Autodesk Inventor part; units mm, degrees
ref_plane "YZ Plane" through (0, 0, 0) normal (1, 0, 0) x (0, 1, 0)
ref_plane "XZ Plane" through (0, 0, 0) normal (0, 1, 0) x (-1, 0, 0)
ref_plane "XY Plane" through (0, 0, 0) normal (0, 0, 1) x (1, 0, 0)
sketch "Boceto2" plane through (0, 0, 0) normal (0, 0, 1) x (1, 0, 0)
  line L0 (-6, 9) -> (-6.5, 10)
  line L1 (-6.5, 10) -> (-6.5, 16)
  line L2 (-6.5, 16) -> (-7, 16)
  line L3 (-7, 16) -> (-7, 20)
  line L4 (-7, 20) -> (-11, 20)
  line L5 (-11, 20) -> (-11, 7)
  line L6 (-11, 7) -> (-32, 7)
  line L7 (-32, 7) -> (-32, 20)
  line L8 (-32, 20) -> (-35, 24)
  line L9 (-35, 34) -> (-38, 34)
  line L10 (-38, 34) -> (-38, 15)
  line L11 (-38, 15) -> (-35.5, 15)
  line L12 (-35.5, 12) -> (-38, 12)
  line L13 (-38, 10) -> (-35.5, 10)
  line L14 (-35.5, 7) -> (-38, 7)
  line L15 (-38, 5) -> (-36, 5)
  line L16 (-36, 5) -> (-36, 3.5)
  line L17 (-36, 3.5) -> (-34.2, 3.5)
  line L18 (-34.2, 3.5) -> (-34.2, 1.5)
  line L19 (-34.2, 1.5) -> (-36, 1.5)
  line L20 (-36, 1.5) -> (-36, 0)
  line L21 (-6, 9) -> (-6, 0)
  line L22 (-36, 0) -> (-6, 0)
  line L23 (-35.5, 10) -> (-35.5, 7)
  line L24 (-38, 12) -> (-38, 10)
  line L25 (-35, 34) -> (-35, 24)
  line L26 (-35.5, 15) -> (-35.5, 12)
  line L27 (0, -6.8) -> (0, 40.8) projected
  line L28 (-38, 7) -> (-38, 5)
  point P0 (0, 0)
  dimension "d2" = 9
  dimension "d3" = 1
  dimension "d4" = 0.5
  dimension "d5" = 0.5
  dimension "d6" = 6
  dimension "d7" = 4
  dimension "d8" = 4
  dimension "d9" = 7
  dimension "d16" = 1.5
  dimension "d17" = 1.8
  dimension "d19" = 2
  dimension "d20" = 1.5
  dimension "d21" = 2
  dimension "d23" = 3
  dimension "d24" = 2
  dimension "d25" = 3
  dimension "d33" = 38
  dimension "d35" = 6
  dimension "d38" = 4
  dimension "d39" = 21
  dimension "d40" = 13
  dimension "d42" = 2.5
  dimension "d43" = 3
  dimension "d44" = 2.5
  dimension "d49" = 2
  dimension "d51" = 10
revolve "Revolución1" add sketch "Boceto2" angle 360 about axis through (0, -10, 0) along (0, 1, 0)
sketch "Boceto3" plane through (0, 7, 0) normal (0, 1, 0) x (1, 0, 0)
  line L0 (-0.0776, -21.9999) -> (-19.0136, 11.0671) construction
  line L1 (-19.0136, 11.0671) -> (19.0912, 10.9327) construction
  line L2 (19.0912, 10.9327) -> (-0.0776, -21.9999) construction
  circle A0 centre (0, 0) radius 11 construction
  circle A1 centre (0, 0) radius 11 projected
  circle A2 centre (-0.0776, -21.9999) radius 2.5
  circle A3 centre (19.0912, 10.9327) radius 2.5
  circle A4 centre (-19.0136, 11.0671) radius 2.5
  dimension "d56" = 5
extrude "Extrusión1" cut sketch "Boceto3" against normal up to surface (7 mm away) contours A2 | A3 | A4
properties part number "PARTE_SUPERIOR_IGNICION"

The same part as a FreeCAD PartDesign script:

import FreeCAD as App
import Part
import Sketcher

V = App.Vector

doc = App.newDocument("Part")
params = doc.addObject("Spreadsheet::Sheet", "Params")
for row, (alias, value) in enumerate([
    ("sketch1_width", "4 mm"),
    ("sketch1_width2", "21 mm"),
    ("sketch1_width3", "3 mm"),
    ("sketch1_width4", "2 mm"),
    ("sketch1_height", "9 mm"),
    ("revolution_angle", "360 deg"),
    ("sketch2_diameter", "5 mm"),
    ("pocket1_length", "7 mm"),
], start=1):
    params.set(f"A{row}", alias)
    params.set(f"B{row}", "=" + value)
    params.setAlias(f"B{row}", alias)

body = doc.addObject("PartDesign::Body", "Body")

# Sketch on XY plane
sketch1 = body.newObject("Sketcher::SketchObject", "Sketch")
sketch1.AttachmentSupport = (doc.getObject("XY_Plane"), [""])
sketch1.MapMode = "FlatFace"
sketch1.addGeometry(Part.LineSegment(V(-6, 0, 0), V(-6, 9, 0)), False)
sketch1.addGeometry(Part.LineSegment(V(-6, 9, 0), V(-6.5, 10, 0)), False)
sketch1.addGeometry(Part.LineSegment(V(-6.5, 10, 0), V(-6.5, 16, 0)), False)
sketch1.addGeometry(Part.LineSegment(V(-6.5, 16, 0), V(-7, 16, 0)), False)
sketch1.addGeometry(Part.LineSegment(V(-7, 16, 0), V(-7, 20, 0)), False)
sketch1.addGeometry(Part.LineSegment(V(-7, 20, 0), V(-11, 20, 0)), False)
sketch1.addGeometry(Part.LineSegment(V(-11, 20, 0), V(-11, 7, 0)), False)
sketch1.addGeometry(Part.LineSegment(V(-11, 7, 0), V(-32, 7, 0)), False)
sketch1.addGeometry(Part.LineSegment(V(-32, 7, 0), V(-32, 20, 0)), False)
sketch1.addGeometry(Part.LineSegment(V(-32, 20, 0), V(-35, 24, 0)), False)
sketch1.addGeometry(Part.LineSegment(V(-35, 24, 0), V(-35, 34, 0)), False)
sketch1.addGeometry(Part.LineSegment(V(-35, 34, 0), V(-38, 34, 0)), False)
sketch1.addGeometry(Part.LineSegment(V(-38, 34, 0), V(-38, 15, 0)), False)
sketch1.addGeometry(Part.LineSegment(V(-38, 15, 0), V(-35.5, 15, 0)), False)
sketch1.addGeometry(Part.LineSegment(V(-35.5, 15, 0), V(-35.5, 12, 0)), False)
sketch1.addGeometry(Part.LineSegment(V(-35.5, 12, 0), V(-38, 12, 0)), False)
sketch1.addGeometry(Part.LineSegment(V(-38, 12, 0), V(-38, 10, 0)), False)
sketch1.addGeometry(Part.LineSegment(V(-38, 10, 0), V(-35.5, 10, 0)), False)
sketch1.addGeometry(Part.LineSegment(V(-35.5, 10, 0), V(-35.5, 7, 0)), False)
sketch1.addGeometry(Part.LineSegment(V(-35.5, 7, 0), V(-38, 7, 0)), False)
sketch1.addGeometry(Part.LineSegment(V(-38, 7, 0), V(-38, 5, 0)), False)
sketch1.addGeometry(Part.LineSegment(V(-38, 5, 0), V(-36, 5, 0)), False)
sketch1.addGeometry(Part.LineSegment(V(-36, 5, 0), V(-36, 3.5, 0)), False)
sketch1.addGeometry(Part.LineSegment(V(-36, 3.5, 0), V(-34.2, 3.5, 0)), False)
sketch1.addGeometry(Part.LineSegment(V(-34.2, 3.5, 0), V(-34.2, 1.5, 0)), False)
sketch1.addGeometry(Part.LineSegment(V(-34.2, 1.5, 0), V(-36, 1.5, 0)), False)
sketch1.addGeometry(Part.LineSegment(V(-36, 1.5, 0), V(-36, 0, 0)), False)
sketch1.addGeometry(Part.LineSegment(V(-36, 0, 0), V(-6, 0, 0)), False)
sketch1.addConstraint(Sketcher.Constraint("Coincident", 0, 2, 1, 1))
sketch1.addConstraint(Sketcher.Constraint("Coincident", 1, 2, 2, 1))
sketch1.addConstraint(Sketcher.Constraint("Coincident", 2, 2, 3, 1))
sketch1.addConstraint(Sketcher.Constraint("Coincident", 3, 2, 4, 1))
sketch1.addConstraint(Sketcher.Constraint("Coincident", 4, 2, 5, 1))
sketch1.addConstraint(Sketcher.Constraint("Coincident", 5, 2, 6, 1))
sketch1.addConstraint(Sketcher.Constraint("Coincident", 6, 2, 7, 1))
sketch1.addConstraint(Sketcher.Constraint("Coincident", 7, 2, 8, 1))
sketch1.addConstraint(Sketcher.Constraint("Coincident", 8, 2, 9, 1))
sketch1.addConstraint(Sketcher.Constraint("Coincident", 9, 2, 10, 1))
sketch1.addConstraint(Sketcher.Constraint("Coincident", 10, 2, 11, 1))
sketch1.addConstraint(Sketcher.Constraint("Coincident", 11, 2, 12, 1))
sketch1.addConstraint(Sketcher.Constraint("Coincident", 12, 2, 13, 1))
sketch1.addConstraint(Sketcher.Constraint("Coincident", 13, 2, 14, 1))
sketch1.addConstraint(Sketcher.Constraint("Coincident", 14, 2, 15, 1))
sketch1.addConstraint(Sketcher.Constraint("Coincident", 15, 2, 16, 1))
sketch1.addConstraint(Sketcher.Constraint("Coincident", 16, 2, 17, 1))
sketch1.addConstraint(Sketcher.Constraint("Coincident", 17, 2, 18, 1))
sketch1.addConstraint(Sketcher.Constraint("Coincident", 18, 2, 19, 1))
sketch1.addConstraint(Sketcher.Constraint("Coincident", 19, 2, 20, 1))
sketch1.addConstraint(Sketcher.Constraint("Coincident", 20, 2, 21, 1))
sketch1.addConstraint(Sketcher.Constraint("Coincident", 21, 2, 22, 1))
sketch1.addConstraint(Sketcher.Constraint("Coincident", 22, 2, 23, 1))
sketch1.addConstraint(Sketcher.Constraint("Coincident", 23, 2, 24, 1))
sketch1.addConstraint(Sketcher.Constraint("Coincident", 24, 2, 25, 1))
sketch1.addConstraint(Sketcher.Constraint("Coincident", 25, 2, 26, 1))
sketch1.addConstraint(Sketcher.Constraint("Coincident", 26, 2, 27, 1))
sketch1.addConstraint(Sketcher.Constraint("Coincident", 27, 2, 0, 1))
sketch1.addConstraint(Sketcher.Constraint("Vertical", 0))
sketch1.addConstraint(Sketcher.Constraint("Vertical", 2))
sketch1.addConstraint(Sketcher.Constraint("Horizontal", 3))
sketch1.addConstraint(Sketcher.Constraint("Vertical", 4))
sketch1.addConstraint(Sketcher.Constraint("Horizontal", 5))
sketch1.addConstraint(Sketcher.Constraint("Vertical", 6))
sketch1.addConstraint(Sketcher.Constraint("Horizontal", 7))
sketch1.addConstraint(Sketcher.Constraint("Vertical", 8))
sketch1.addConstraint(Sketcher.Constraint("Vertical", 10))
sketch1.addConstraint(Sketcher.Constraint("Horizontal", 11))
sketch1.addConstraint(Sketcher.Constraint("Vertical", 12))
sketch1.addConstraint(Sketcher.Constraint("Horizontal", 13))
sketch1.addConstraint(Sketcher.Constraint("Vertical", 14))
sketch1.addConstraint(Sketcher.Constraint("Horizontal", 15))
sketch1.addConstraint(Sketcher.Constraint("Vertical", 16))
sketch1.addConstraint(Sketcher.Constraint("Horizontal", 17))
sketch1.addConstraint(Sketcher.Constraint("Vertical", 18))
sketch1.addConstraint(Sketcher.Constraint("Horizontal", 19))
sketch1.addConstraint(Sketcher.Constraint("Vertical", 20))
sketch1.addConstraint(Sketcher.Constraint("Horizontal", 21))
sketch1.addConstraint(Sketcher.Constraint("Vertical", 22))
sketch1.addConstraint(Sketcher.Constraint("Horizontal", 23))
sketch1.addConstraint(Sketcher.Constraint("Vertical", 24))
sketch1.addConstraint(Sketcher.Constraint("Horizontal", 25))
sketch1.addConstraint(Sketcher.Constraint("Vertical", 26))
sketch1.addConstraint(Sketcher.Constraint("Horizontal", 27))
sketch1.addConstraint(Sketcher.Constraint("PointOnObject", 26, 2, -1))
sketch1.addConstraint(Sketcher.Constraint("Horizontal", 5, 2, 8, 2))
sketch1.addConstraint(Sketcher.Constraint("Horizontal", 1, 2, 16, 2))
sketch1.addConstraint(Sketcher.Constraint("Horizontal", 7, 2, 18, 2))
sketch1.addConstraint(Sketcher.Constraint("Vertical", 12, 2, 15, 2))
sketch1.addConstraint(Sketcher.Constraint("Vertical", 14, 2, 17, 2))
sketch1.addConstraint(Sketcher.Constraint("Vertical", 16, 2, 19, 2))
sketch1.addConstraint(Sketcher.Constraint("Vertical", 22, 2, 25, 2))
sketch1.addConstraint(Sketcher.Constraint("Equal", 5, 4))
sketch1.addConstraint(Sketcher.Constraint("Equal", 11, 14))
sketch1.addConstraint(Sketcher.Constraint("Equal", 21, 16))
sketch1.addConstraint(Sketcher.Constraint("Equal", 14, 18))
sketch1.addConstraint(Sketcher.Constraint("Equal", 16, 20))
sketch1.addConstraint(Sketcher.Constraint("Equal", 20, 24))
sketch1.addConstraint(Sketcher.Constraint("Equal", 22, 26))
sketch1.addConstraint(Sketcher.Constraint("DistanceX", 5, 2, 5, 1, 4.0))
sketch1.addConstraint(Sketcher.Constraint("DistanceX", 7, 2, 7, 1, 21.0))
sketch1.addConstraint(Sketcher.Constraint("DistanceX", 11, 2, 11, 1, 3.0))
sketch1.addConstraint(Sketcher.Constraint("DistanceX", 21, 1, 21, 2, 2.0))
sketch1.addConstraint(Sketcher.Constraint("DistanceY", 0, 1, 0, 2, 9.0))
sketch1.addConstraint(Sketcher.Constraint("DistanceY", 2, 1, 2, 2, 6.0))
sketch1.addConstraint(Sketcher.Constraint("DistanceY", 10, 1, 10, 2, 10.0))
sketch1.addConstraint(Sketcher.Constraint("DistanceX", 3, 2, 3, 1, 0.5))
sketch1.addConstraint(Sketcher.Constraint("DistanceX", 13, 1, 13, 2, 2.5))
sketch1.addConstraint(Sketcher.Constraint("DistanceX", 23, 1, 23, 2, 1.8))
sketch1.addConstraint(Sketcher.Constraint("DistanceY", 22, 2, 22, 1, 1.5))
sketch1.addConstraint(Sketcher.Constraint("DistanceX", 0, 2, -1, 1, 6.0))
sketch1.addConstraint(Sketcher.Constraint("DistanceX", 3, 2, -1, 1, 7.0))
sketch1.addConstraint(Sketcher.Constraint("DistanceX", 11, 2, -1, 1, 38.0))
sketch1.addConstraint(Sketcher.Constraint("DistanceY", 8, 2, 9, 2, 4.0))
sketch1.setExpression("Constraints[69]", "Params.sketch1_width")
sketch1.setExpression("Constraints[70]", "Params.sketch1_width2")
sketch1.setExpression("Constraints[71]", "Params.sketch1_width3")
sketch1.setExpression("Constraints[72]", "Params.sketch1_width4")
sketch1.setExpression("Constraints[73]", "Params.sketch1_height")
revolution = body.newObject("PartDesign::Revolution", "Revolution")
revolution.Profile = sketch1
revolution.ReferenceAxis = (sketch1, ["V_Axis"])
revolution.setExpression("Angle", "Params.revolution_angle")

# Sketch on XZ plane
sketch2 = body.newObject("Sketcher::SketchObject", "Sketch001")
sketch2.AttachmentSupport = (doc.getObject("XZ_Plane"), [""])
sketch2.MapMode = "FlatFace"
sketch2.AttachmentOffset = App.Placement(V(0, 0, -7), App.Rotation())
sketch2.addGeometry(Part.Circle(V(-0.0776, 21.9999, 0), V(0, 0, 1), 2.5), False)
sketch2.addGeometry(Part.Circle(V(19.0912, -10.9327, 0), V(0, 0, 1), 2.5), False)
sketch2.addGeometry(Part.Circle(V(-19.0136, -11.0671, 0), V(0, 0, 1), 2.5), False)
sketch2.addConstraint(Sketcher.Constraint("Equal", 0, 1))
sketch2.addConstraint(Sketcher.Constraint("Equal", 1, 2))
sketch2.addConstraint(Sketcher.Constraint("Diameter", 0, 5.0))
sketch2.addConstraint(Sketcher.Constraint("DistanceY", -1, 1, 0, 3, 22.0))
sketch2.addConstraint(Sketcher.Constraint("DistanceY", 2, 3, -1, 1, 11.067))
sketch2.addConstraint(Sketcher.Constraint("DistanceX", 2, 3, 0, 3, 18.936))
sketch2.addConstraint(Sketcher.Constraint("DistanceX", 0, 3, -1, 1, 0.0776))
sketch2.addConstraint(Sketcher.Constraint("DistanceX", -1, 1, 1, 3, 19.0912))
sketch2.addConstraint(Sketcher.Constraint("DistanceY", 1, 3, -1, 1, 10.9327))
sketch2.setExpression("Constraints[2]", "Params.sketch2_diameter")
pocket1 = body.newObject("PartDesign::Pocket", "Pocket")
pocket1.Profile = sketch2
pocket1.setExpression("Length", "Params.pocket1_length")
pocket1.Reversed = True

doc.recompute()
